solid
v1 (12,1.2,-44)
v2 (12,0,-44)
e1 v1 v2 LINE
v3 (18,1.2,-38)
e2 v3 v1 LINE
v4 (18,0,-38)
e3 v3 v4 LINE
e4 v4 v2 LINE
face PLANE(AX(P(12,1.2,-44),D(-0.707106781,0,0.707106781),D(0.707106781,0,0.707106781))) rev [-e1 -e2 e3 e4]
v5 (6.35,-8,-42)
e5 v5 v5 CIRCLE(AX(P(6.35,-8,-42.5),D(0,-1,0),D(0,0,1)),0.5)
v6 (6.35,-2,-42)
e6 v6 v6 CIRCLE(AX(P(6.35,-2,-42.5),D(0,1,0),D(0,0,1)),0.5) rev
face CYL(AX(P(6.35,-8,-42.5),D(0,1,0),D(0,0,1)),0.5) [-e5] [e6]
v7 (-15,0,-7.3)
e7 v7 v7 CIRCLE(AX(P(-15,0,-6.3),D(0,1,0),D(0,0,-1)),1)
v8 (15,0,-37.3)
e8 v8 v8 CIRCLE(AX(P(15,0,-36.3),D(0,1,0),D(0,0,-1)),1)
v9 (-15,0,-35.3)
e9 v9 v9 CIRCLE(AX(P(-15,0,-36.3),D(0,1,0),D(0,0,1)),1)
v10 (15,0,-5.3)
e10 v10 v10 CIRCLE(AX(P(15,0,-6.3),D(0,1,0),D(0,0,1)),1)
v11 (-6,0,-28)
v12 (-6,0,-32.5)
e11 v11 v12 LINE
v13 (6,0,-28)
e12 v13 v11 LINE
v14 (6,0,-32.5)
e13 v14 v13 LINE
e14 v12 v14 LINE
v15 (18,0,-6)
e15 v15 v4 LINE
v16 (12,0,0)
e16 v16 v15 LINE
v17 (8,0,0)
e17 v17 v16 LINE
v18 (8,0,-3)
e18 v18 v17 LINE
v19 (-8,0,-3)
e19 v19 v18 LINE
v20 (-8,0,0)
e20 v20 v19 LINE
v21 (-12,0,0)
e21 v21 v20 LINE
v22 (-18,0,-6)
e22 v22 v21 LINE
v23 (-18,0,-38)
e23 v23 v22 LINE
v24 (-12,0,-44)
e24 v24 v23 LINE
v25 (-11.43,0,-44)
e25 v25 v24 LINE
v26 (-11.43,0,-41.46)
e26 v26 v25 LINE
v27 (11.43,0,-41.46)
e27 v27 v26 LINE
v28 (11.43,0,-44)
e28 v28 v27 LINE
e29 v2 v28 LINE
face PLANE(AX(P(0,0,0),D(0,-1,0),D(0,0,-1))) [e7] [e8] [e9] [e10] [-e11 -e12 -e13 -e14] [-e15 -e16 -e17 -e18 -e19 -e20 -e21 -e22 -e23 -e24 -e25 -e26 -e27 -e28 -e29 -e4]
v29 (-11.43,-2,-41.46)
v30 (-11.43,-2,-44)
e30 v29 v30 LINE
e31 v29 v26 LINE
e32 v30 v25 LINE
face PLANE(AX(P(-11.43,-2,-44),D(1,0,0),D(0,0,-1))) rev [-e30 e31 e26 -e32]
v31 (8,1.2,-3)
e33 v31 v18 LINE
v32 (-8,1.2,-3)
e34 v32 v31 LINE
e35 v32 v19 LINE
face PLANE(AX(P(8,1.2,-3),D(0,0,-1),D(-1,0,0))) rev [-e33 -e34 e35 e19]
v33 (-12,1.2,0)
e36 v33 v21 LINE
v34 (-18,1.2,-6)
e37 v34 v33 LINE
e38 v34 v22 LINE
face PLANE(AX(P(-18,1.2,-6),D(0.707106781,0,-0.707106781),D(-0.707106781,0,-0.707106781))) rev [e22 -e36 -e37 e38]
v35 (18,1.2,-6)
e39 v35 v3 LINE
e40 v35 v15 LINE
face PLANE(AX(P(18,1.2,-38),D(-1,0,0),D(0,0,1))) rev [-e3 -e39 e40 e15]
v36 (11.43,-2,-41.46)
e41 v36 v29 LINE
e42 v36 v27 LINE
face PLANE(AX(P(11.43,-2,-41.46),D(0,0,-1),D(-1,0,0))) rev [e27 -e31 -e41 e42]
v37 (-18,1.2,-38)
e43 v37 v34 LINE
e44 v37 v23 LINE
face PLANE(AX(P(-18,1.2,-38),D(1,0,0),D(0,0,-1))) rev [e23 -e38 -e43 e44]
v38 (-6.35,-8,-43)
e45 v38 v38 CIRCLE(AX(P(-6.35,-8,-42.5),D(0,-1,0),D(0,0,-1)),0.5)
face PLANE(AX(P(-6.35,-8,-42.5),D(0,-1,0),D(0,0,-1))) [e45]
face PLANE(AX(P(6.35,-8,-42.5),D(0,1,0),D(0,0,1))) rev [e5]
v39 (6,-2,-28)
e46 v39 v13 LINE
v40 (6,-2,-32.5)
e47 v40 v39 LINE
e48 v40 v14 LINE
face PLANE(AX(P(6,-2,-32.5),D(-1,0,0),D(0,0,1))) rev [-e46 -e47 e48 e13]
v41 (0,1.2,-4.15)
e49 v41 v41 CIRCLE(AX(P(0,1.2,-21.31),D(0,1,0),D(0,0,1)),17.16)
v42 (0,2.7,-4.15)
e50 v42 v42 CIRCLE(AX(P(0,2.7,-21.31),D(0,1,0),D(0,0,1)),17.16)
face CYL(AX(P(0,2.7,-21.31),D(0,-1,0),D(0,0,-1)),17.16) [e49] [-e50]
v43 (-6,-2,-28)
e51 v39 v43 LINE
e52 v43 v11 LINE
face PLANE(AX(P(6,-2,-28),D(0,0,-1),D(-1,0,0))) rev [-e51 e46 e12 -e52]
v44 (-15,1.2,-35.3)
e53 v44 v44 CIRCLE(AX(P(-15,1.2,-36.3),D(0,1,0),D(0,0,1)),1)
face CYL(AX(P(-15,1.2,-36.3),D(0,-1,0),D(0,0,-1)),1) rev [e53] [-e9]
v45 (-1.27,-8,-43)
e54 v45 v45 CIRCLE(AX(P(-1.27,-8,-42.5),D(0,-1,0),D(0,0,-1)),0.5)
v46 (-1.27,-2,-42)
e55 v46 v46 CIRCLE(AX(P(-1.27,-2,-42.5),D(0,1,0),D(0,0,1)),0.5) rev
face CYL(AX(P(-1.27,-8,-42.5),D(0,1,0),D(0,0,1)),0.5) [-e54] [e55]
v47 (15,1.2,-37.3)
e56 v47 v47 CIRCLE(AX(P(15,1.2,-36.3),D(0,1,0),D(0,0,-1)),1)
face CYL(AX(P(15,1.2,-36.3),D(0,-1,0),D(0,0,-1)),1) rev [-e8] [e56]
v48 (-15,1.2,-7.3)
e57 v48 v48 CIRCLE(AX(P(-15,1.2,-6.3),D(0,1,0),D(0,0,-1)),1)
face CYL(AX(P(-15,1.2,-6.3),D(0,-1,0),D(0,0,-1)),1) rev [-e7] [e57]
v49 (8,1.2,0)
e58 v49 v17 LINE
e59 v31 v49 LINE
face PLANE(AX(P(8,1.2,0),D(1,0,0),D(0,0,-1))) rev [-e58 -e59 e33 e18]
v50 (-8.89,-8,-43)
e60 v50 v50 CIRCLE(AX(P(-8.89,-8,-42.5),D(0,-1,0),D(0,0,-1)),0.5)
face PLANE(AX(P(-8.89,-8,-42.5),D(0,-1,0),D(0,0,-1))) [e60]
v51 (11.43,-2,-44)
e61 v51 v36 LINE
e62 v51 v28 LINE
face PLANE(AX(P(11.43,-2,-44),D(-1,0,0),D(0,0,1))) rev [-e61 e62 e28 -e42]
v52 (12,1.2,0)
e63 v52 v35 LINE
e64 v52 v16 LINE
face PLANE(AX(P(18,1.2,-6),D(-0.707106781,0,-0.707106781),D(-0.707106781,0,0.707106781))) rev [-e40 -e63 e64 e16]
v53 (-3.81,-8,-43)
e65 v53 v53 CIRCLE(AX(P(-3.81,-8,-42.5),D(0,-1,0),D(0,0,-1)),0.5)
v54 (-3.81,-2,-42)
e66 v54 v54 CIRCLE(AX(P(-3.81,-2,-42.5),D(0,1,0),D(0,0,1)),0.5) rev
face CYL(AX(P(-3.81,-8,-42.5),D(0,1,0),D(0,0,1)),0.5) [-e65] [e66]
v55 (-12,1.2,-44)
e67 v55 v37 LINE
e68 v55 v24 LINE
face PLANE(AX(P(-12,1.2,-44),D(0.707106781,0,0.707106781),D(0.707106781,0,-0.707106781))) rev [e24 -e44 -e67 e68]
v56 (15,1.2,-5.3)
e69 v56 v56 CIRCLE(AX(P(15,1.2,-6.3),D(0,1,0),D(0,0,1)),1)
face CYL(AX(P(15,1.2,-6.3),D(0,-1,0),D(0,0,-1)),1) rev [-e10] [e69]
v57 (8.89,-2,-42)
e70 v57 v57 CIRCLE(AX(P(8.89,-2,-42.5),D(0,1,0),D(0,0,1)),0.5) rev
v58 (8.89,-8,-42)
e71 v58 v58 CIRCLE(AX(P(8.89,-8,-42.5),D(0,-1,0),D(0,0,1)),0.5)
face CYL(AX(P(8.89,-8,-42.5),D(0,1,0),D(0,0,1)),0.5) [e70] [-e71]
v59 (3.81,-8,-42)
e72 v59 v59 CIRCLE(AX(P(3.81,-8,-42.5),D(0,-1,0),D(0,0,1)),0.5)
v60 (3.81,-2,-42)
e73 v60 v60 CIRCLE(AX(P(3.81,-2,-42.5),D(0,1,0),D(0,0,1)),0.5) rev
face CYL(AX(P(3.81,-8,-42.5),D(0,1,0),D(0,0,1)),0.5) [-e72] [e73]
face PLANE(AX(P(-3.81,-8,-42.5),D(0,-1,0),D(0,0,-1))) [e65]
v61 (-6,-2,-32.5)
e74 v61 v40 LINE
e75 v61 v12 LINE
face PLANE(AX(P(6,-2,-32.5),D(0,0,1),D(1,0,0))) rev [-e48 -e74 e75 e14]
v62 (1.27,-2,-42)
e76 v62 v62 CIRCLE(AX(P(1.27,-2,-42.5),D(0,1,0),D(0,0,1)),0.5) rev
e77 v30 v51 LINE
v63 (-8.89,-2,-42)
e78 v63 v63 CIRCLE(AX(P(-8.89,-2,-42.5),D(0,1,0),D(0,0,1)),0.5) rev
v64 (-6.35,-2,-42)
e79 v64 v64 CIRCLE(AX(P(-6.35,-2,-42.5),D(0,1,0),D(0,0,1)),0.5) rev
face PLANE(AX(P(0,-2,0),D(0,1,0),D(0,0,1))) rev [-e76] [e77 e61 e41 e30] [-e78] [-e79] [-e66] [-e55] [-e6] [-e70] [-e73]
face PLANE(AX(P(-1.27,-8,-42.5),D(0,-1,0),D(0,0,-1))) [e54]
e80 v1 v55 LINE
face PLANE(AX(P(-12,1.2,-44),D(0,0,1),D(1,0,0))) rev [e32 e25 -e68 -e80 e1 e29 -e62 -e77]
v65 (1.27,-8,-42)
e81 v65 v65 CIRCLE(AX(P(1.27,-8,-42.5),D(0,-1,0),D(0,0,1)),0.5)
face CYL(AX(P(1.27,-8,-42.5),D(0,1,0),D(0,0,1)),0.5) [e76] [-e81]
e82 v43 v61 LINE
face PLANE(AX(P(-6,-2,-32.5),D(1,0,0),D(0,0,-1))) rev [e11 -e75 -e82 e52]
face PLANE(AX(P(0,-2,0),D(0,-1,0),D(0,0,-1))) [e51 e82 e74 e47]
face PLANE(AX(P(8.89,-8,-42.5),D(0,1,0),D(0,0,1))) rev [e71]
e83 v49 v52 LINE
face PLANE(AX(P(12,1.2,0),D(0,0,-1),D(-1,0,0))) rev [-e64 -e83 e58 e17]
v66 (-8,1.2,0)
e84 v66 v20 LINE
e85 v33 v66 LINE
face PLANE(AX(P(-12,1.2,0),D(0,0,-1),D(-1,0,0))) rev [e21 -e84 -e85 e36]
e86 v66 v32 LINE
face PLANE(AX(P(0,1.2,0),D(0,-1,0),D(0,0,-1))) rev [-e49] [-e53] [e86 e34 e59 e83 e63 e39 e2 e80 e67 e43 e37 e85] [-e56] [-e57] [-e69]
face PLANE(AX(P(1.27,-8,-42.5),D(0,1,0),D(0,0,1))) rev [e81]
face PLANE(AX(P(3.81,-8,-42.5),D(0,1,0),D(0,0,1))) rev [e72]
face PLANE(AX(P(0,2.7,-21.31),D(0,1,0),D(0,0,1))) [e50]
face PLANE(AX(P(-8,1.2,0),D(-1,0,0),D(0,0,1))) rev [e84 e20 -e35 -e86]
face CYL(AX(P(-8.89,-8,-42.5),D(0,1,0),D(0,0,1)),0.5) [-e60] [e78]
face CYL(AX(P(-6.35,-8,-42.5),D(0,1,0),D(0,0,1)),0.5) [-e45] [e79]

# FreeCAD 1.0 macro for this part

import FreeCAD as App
import Part
import Sketcher


def add_polygon(sketch, points):
    """Adds a closed chain of lines whose ends are joined by coincident constraints."""
    first, n = sketch.GeometryCount, len(points)
    for a, b in zip(points, points[1:] + points[:1]):
        sketch.addGeometry(Part.LineSegment(App.Vector(*a, 0), App.Vector(*b, 0)), False)
    for i in range(n):
        sketch.addConstraint(Sketcher.Constraint("Coincident", first + i, 2, first + (i + 1) % n, 1))

doc = App.newDocument("Part")
params = doc.addObject("Spreadsheet::Sheet", "Params")
for row, (alias, value) in enumerate([
    ("sketch1_diameter", "2 mm"),
    ("sketch1_width", "24 mm"),
    ("sketch1_width2", "4 mm"),
    ("sketch1_height", "32 mm"),
    ("sketch1_height2", "3 mm"),
    ("pad1_length", "1.2 mm"),
    ("sketch2_diameter", "34.32 mm"),
    ("pad2_length", "1.5 mm"),
    ("sketch3_width", "12 mm"),
    ("sketch3_height", "4.5 mm"),
    ("sketch3_width2", "22.86 mm"),
    ("sketch3_height2", "2.54 mm"),
    ("pad3_length", "2 mm"),
    ("sketch4_diameter", "1 mm"),
    ("pad4_length", "8 mm"),
], start=1):
    params.set(f"A{row}", alias)
    params.set(f"B{row}", "=" + value)
    params.setAlias(f"B{row}", alias)

body = doc.addObject("PartDesign::Body", "Body")

# Sketch on XZ plane
sketch1 = doc.addObject("Sketcher::SketchObject", "Sketch")
body.addObject(sketch1)
sketch1.AttachmentSupport = (doc.XZ_Plane, [""])
sketch1.MapMode = "FlatFace"
add_polygon(sketch1, [(12, -44), (-12, -44), (-18, -38), (-18, -6), (-12, 0), (-8, 0), (-8, -3), (8, -3), (8, 0), (12, 0), (18, -6), (18, -38)])  # lines 0-11
sketch1.addGeometry(Part.Circle(App.Vector(15, -6.3, 0), App.Vector(0, 0, 1), 1), False)  # 12
sketch1.addGeometry(Part.Circle(App.Vector(-15, -6.3, 0), App.Vector(0, 0, 1), 1), False)  # 13
sketch1.addGeometry(Part.Circle(App.Vector(15, -36.3, 0), App.Vector(0, 0, 1), 1), False)  # 14
sketch1.addGeometry(Part.Circle(App.Vector(-15, -36.3, 0), App.Vector(0, 0, 1), 1), False)  # 15
sketch1.addConstraint(Sketcher.Constraint("Horizontal", 0))
sketch1.addConstraint(Sketcher.Constraint("Vertical", 2))
sketch1.addConstraint(Sketcher.Constraint("Horizontal", 4))
sketch1.addConstraint(Sketcher.Constraint("Vertical", 5))
sketch1.addConstraint(Sketcher.Constraint("Horizontal", 6))
sketch1.addConstraint(Sketcher.Constraint("Vertical", 7))
sketch1.addConstraint(Sketcher.Constraint("Horizontal", 8))
sketch1.addConstraint(Sketcher.Constraint("Vertical", 10))
sketch1.addConstraint(Sketcher.Constraint("Equal", 12, 13))
sketch1.addConstraint(Sketcher.Constraint("Equal", 13, 14))
sketch1.addConstraint(Sketcher.Constraint("Equal", 14, 15))
sketch1.addConstraint(Sketcher.Constraint("Symmetric", 4, 2, 7, 2, -1, 1))
sketch1.addConstraint(Sketcher.Constraint("Symmetric", 12, 3, 13, 3, -2))
sketch1.addConstraint(Sketcher.Constraint("Symmetric", 14, 3, 15, 3, -2))
sketch1.addConstraint(Sketcher.Constraint("Symmetric", 3, 2, 8, 2, -2))
sketch1.addConstraint(Sketcher.Constraint("Symmetric", 2, 2, 9, 2, -2))
sketch1.addConstraint(Sketcher.Constraint("Perpendicular", 1, 3))
sketch1.addConstraint(Sketcher.Constraint("Perpendicular", 3, 9))
sketch1.addConstraint(Sketcher.Constraint("Perpendicular", 9, 11))
sketch1.addConstraint(Sketcher.Constraint("Horizontal", 1, 2, 10, 2))
sketch1.addConstraint(Sketcher.Constraint("Vertical", 12, 3, 14, 3))
sketch1.addConstraint(Sketcher.Constraint("Vertical", 0, 2, 3, 2))
sketch1.addConstraint(Sketcher.Constraint("Diameter", 12, 2.0))
sketch1.addConstraint(Sketcher.Constraint("DistanceX", 0, 2, 0, 1, 24.0))
sketch1.addConstraint(Sketcher.Constraint("DistanceX", 4, 1, 4, 2, 4.0))
sketch1.addConstraint(Sketcher.Constraint("DistanceY", 2, 1, 2, 2, 32.0))
sketch1.addConstraint(Sketcher.Constraint("DistanceY", 5, 2, 5, 1, 3.0))
sketch1.addConstraint(Sketcher.Constraint("DistanceX", -1, 1, 12, 3, 15.0))
sketch1.addConstraint(Sketcher.Constraint("DistanceY", 0, 2, -1, 1, 44.0))
sketch1.addConstraint(Sketcher.Constraint("DistanceY", 14, 3, 12, 3, 30.0))
sketch1.addConstraint(Sketcher.Constraint("DistanceY", 12, 3, -1, 1, 6.3))
sketch1.setExpression("Constraints[34]", "Params.sketch1_diameter")
sketch1.setExpression("Constraints[35]", "Params.sketch1_width")
sketch1.setExpression("Constraints[36]", "Params.sketch1_width2")
sketch1.setExpression("Constraints[37]", "Params.sketch1_height")
sketch1.setExpression("Constraints[38]", "Params.sketch1_height2")
pad1 = doc.addObject("PartDesign::Pad", "Pad")
body.addObject(pad1)
pad1.Profile = sketch1
pad1.setExpression("Length", "Params.pad1_length")
pad1.Reversed = True

# Sketch on XZ plane
sketch2 = doc.addObject("Sketcher::SketchObject", "Sketch001")
body.addObject(sketch2)
sketch2.AttachmentSupport = (doc.XZ_Plane, [""])
sketch2.MapMode = "FlatFace"
sketch2.AttachmentOffset = App.Placement(App.Vector(0, 0, -1.2), App.Rotation())
sketch2.addGeometry(Part.Circle(App.Vector(0, -21, 0), App.Vector(0, 0, 1), 17), False)
sketch2.addConstraint(Sketcher.Constraint("PointOnObject", 0, 3, -2))
sketch2.addConstraint(Sketcher.Constraint("Diameter", 0, 34.32))
sketch2.addConstraint(Sketcher.Constraint("DistanceY", 0, 3, -1, 1, 21.31))
sketch2.setExpression("Constraints[1]", "Params.sketch2_diameter")
pad2 = doc.addObject("PartDesign::Pad", "Pad001")
body.addObject(pad2)
pad2.Profile = sketch2
pad2.setExpression("Length", "Params.pad2_length")
pad2.Reversed = True

# Sketch on XZ plane
sketch3 = doc.addObject("Sketcher::SketchObject", "Sketch002")
body.addObject(sketch3)
sketch3.AttachmentSupport = (doc.XZ_Plane, [""])
sketch3.MapMode = "FlatFace"
add_polygon(sketch3, [(-6, -28), (-6, -32.5), (6, -32.5), (6, -28)])  # lines 0-3
add_polygon(sketch3, [(-11.4, -41.5), (-11.4, -44), (11.4, -44), (11.4, -41.5)])  # lines 4-7
sketch3.addConstraint(Sketcher.Constraint("Vertical", 0))
sketch3.addConstraint(Sketcher.Constraint("Horizontal", 1))
sketch3.addConstraint(Sketcher.Constraint("Vertical", 2))
sketch3.addConstraint(Sketcher.Constraint("Horizontal", 3))
sketch3.addConstraint(Sketcher.Constraint("Vertical", 4))
sketch3.addConstraint(Sketcher.Constraint("Horizontal", 5))
sketch3.addConstraint(Sketcher.Constraint("Vertical", 6))
sketch3.addConstraint(Sketcher.Constraint("Horizontal", 7))
sketch3.addConstraint(Sketcher.Constraint("DistanceX", 1, 1, 1, 2, 12.0))
sketch3.addConstraint(Sketcher.Constraint("DistanceY", 0, 2, 0, 1, 4.5))
sketch3.addConstraint(Sketcher.Constraint("DistanceX", 0, 2, -1, 1, 6.0))
sketch3.addConstraint(Sketcher.Constraint("DistanceY", 2, 2, -1, 1, 28.0))
sketch3.addConstraint(Sketcher.Constraint("DistanceY", 4, 2, -1, 1, 44.0))
sketch3.addConstraint(Sketcher.Constraint("DistanceX", 5, 1, 5, 2, 22.86))
sketch3.addConstraint(Sketcher.Constraint("DistanceY", 4, 2, 4, 1, 2.54))
sketch3.addConstraint(Sketcher.Constraint("DistanceX", 4, 2, -1, 1, 11.43))
sketch3.setExpression("Constraints[16]", "Params.sketch3_width")
sketch3.setExpression("Constraints[17]", "Params.sketch3_height")
sketch3.setExpression("Constraints[21]", "Params.sketch3_width2")
sketch3.setExpression("Constraints[22]", "Params.sketch3_height2")
pad3 = doc.addObject("PartDesign::Pad", "Pad002")
body.addObject(pad3)
pad3.Profile = sketch3
pad3.setExpression("Length", "Params.pad3_length")

# Sketch on XZ plane
sketch4 = doc.addObject("Sketcher::SketchObject", "Sketch003")
body.addObject(sketch4)
sketch4.AttachmentSupport = (doc.XZ_Plane, [""])
sketch4.MapMode = "FlatFace"
sketch4.addGeometry(Part.Circle(App.Vector(-1.3, -42.5, 0), App.Vector(0, 0, 1), 0.5), False)
sketch4.addGeometry(Part.Circle(App.Vector(-3.8, -42.5, 0), App.Vector(0, 0, 1), 0.5), False)
sketch4.addGeometry(Part.Circle(App.Vector(-6.3, -42.5, 0), App.Vector(0, 0, 1), 0.5), False)
sketch4.addGeometry(Part.Circle(App.Vector(-8.9, -42.5, 0), App.Vector(0, 0, 1), 0.5), False)
sketch4.addGeometry(Part.Circle(App.Vector(8.9, -42.5, 0), App.Vector(0, 0, 1), 0.5), False)
sketch4.addGeometry(Part.Circle(App.Vector(6.3, -42.5, 0), App.Vector(0, 0, 1), 0.5), False)
sketch4.addGeometry(Part.Circle(App.Vector(3.8, -42.5, 0), App.Vector(0, 0, 1), 0.5), False)
sketch4.addGeometry(Part.Circle(App.Vector(1.3, -42.5, 0), App.Vector(0, 0, 1), 0.5), False)
sketch4.addConstraint(Sketcher.Constraint("Equal", 0, 1))
sketch4.addConstraint(Sketcher.Constraint("Equal", 1, 2))
sketch4.addConstraint(Sketcher.Constraint("Equal", 2, 3))
sketch4.addConstraint(Sketcher.Constraint("Equal", 3, 4))
sketch4.addConstraint(Sketcher.Constraint("Equal", 4, 5))
sketch4.addConstraint(Sketcher.Constraint("Equal", 5, 6))
sketch4.addConstraint(Sketcher.Constraint("Equal", 6, 7))
sketch4.addConstraint(Sketcher.Constraint("Symmetric", 3, 3, 4, 3, -2))
sketch4.addConstraint(Sketcher.Constraint("Symmetric", 2, 3, 5, 3, -2))
sketch4.addConstraint(Sketcher.Constraint("Symmetric", 1, 3, 6, 3, -2))
sketch4.addConstraint(Sketcher.Constraint("Symmetric", 0, 3, 7, 3, -2))
sketch4.addConstraint(Sketcher.Constraint("Horizontal", 0, 3, 1, 3))
sketch4.addConstraint(Sketcher.Constraint("Horizontal", 1, 3, 2, 3))
sketch4.addConstraint(Sketcher.Constraint("Horizontal", 2, 3, 3, 3))
sketch4.addConstraint(Sketcher.Constraint("Diameter", 0, 1.0))
sketch4.addConstraint(Sketcher.Constraint("DistanceY", 0, 3, -1, 1, 42.5))
sketch4.addConstraint(Sketcher.Constraint("DistanceX", 1, 3, 4, 3, 12.7))
sketch4.addConstraint(Sketcher.Constraint("DistanceX", 2, 3, 5, 3, 12.7))
sketch4.addConstraint(Sketcher.Constraint("DistanceX", 0, 3, -1, 1, 1.27))
sketch4.addConstraint(Sketcher.Constraint("DistanceX", 1, 3, -1, 1, 3.81))
sketch4.setExpression("Constraints[14]", "Params.sketch4_diameter")
pad4 = doc.addObject("PartDesign::Pad", "Pad003")
body.addObject(pad4)
pad4.Profile = sketch4
pad4.setExpression("Length", "Params.pad4_length")

doc.recompute()
